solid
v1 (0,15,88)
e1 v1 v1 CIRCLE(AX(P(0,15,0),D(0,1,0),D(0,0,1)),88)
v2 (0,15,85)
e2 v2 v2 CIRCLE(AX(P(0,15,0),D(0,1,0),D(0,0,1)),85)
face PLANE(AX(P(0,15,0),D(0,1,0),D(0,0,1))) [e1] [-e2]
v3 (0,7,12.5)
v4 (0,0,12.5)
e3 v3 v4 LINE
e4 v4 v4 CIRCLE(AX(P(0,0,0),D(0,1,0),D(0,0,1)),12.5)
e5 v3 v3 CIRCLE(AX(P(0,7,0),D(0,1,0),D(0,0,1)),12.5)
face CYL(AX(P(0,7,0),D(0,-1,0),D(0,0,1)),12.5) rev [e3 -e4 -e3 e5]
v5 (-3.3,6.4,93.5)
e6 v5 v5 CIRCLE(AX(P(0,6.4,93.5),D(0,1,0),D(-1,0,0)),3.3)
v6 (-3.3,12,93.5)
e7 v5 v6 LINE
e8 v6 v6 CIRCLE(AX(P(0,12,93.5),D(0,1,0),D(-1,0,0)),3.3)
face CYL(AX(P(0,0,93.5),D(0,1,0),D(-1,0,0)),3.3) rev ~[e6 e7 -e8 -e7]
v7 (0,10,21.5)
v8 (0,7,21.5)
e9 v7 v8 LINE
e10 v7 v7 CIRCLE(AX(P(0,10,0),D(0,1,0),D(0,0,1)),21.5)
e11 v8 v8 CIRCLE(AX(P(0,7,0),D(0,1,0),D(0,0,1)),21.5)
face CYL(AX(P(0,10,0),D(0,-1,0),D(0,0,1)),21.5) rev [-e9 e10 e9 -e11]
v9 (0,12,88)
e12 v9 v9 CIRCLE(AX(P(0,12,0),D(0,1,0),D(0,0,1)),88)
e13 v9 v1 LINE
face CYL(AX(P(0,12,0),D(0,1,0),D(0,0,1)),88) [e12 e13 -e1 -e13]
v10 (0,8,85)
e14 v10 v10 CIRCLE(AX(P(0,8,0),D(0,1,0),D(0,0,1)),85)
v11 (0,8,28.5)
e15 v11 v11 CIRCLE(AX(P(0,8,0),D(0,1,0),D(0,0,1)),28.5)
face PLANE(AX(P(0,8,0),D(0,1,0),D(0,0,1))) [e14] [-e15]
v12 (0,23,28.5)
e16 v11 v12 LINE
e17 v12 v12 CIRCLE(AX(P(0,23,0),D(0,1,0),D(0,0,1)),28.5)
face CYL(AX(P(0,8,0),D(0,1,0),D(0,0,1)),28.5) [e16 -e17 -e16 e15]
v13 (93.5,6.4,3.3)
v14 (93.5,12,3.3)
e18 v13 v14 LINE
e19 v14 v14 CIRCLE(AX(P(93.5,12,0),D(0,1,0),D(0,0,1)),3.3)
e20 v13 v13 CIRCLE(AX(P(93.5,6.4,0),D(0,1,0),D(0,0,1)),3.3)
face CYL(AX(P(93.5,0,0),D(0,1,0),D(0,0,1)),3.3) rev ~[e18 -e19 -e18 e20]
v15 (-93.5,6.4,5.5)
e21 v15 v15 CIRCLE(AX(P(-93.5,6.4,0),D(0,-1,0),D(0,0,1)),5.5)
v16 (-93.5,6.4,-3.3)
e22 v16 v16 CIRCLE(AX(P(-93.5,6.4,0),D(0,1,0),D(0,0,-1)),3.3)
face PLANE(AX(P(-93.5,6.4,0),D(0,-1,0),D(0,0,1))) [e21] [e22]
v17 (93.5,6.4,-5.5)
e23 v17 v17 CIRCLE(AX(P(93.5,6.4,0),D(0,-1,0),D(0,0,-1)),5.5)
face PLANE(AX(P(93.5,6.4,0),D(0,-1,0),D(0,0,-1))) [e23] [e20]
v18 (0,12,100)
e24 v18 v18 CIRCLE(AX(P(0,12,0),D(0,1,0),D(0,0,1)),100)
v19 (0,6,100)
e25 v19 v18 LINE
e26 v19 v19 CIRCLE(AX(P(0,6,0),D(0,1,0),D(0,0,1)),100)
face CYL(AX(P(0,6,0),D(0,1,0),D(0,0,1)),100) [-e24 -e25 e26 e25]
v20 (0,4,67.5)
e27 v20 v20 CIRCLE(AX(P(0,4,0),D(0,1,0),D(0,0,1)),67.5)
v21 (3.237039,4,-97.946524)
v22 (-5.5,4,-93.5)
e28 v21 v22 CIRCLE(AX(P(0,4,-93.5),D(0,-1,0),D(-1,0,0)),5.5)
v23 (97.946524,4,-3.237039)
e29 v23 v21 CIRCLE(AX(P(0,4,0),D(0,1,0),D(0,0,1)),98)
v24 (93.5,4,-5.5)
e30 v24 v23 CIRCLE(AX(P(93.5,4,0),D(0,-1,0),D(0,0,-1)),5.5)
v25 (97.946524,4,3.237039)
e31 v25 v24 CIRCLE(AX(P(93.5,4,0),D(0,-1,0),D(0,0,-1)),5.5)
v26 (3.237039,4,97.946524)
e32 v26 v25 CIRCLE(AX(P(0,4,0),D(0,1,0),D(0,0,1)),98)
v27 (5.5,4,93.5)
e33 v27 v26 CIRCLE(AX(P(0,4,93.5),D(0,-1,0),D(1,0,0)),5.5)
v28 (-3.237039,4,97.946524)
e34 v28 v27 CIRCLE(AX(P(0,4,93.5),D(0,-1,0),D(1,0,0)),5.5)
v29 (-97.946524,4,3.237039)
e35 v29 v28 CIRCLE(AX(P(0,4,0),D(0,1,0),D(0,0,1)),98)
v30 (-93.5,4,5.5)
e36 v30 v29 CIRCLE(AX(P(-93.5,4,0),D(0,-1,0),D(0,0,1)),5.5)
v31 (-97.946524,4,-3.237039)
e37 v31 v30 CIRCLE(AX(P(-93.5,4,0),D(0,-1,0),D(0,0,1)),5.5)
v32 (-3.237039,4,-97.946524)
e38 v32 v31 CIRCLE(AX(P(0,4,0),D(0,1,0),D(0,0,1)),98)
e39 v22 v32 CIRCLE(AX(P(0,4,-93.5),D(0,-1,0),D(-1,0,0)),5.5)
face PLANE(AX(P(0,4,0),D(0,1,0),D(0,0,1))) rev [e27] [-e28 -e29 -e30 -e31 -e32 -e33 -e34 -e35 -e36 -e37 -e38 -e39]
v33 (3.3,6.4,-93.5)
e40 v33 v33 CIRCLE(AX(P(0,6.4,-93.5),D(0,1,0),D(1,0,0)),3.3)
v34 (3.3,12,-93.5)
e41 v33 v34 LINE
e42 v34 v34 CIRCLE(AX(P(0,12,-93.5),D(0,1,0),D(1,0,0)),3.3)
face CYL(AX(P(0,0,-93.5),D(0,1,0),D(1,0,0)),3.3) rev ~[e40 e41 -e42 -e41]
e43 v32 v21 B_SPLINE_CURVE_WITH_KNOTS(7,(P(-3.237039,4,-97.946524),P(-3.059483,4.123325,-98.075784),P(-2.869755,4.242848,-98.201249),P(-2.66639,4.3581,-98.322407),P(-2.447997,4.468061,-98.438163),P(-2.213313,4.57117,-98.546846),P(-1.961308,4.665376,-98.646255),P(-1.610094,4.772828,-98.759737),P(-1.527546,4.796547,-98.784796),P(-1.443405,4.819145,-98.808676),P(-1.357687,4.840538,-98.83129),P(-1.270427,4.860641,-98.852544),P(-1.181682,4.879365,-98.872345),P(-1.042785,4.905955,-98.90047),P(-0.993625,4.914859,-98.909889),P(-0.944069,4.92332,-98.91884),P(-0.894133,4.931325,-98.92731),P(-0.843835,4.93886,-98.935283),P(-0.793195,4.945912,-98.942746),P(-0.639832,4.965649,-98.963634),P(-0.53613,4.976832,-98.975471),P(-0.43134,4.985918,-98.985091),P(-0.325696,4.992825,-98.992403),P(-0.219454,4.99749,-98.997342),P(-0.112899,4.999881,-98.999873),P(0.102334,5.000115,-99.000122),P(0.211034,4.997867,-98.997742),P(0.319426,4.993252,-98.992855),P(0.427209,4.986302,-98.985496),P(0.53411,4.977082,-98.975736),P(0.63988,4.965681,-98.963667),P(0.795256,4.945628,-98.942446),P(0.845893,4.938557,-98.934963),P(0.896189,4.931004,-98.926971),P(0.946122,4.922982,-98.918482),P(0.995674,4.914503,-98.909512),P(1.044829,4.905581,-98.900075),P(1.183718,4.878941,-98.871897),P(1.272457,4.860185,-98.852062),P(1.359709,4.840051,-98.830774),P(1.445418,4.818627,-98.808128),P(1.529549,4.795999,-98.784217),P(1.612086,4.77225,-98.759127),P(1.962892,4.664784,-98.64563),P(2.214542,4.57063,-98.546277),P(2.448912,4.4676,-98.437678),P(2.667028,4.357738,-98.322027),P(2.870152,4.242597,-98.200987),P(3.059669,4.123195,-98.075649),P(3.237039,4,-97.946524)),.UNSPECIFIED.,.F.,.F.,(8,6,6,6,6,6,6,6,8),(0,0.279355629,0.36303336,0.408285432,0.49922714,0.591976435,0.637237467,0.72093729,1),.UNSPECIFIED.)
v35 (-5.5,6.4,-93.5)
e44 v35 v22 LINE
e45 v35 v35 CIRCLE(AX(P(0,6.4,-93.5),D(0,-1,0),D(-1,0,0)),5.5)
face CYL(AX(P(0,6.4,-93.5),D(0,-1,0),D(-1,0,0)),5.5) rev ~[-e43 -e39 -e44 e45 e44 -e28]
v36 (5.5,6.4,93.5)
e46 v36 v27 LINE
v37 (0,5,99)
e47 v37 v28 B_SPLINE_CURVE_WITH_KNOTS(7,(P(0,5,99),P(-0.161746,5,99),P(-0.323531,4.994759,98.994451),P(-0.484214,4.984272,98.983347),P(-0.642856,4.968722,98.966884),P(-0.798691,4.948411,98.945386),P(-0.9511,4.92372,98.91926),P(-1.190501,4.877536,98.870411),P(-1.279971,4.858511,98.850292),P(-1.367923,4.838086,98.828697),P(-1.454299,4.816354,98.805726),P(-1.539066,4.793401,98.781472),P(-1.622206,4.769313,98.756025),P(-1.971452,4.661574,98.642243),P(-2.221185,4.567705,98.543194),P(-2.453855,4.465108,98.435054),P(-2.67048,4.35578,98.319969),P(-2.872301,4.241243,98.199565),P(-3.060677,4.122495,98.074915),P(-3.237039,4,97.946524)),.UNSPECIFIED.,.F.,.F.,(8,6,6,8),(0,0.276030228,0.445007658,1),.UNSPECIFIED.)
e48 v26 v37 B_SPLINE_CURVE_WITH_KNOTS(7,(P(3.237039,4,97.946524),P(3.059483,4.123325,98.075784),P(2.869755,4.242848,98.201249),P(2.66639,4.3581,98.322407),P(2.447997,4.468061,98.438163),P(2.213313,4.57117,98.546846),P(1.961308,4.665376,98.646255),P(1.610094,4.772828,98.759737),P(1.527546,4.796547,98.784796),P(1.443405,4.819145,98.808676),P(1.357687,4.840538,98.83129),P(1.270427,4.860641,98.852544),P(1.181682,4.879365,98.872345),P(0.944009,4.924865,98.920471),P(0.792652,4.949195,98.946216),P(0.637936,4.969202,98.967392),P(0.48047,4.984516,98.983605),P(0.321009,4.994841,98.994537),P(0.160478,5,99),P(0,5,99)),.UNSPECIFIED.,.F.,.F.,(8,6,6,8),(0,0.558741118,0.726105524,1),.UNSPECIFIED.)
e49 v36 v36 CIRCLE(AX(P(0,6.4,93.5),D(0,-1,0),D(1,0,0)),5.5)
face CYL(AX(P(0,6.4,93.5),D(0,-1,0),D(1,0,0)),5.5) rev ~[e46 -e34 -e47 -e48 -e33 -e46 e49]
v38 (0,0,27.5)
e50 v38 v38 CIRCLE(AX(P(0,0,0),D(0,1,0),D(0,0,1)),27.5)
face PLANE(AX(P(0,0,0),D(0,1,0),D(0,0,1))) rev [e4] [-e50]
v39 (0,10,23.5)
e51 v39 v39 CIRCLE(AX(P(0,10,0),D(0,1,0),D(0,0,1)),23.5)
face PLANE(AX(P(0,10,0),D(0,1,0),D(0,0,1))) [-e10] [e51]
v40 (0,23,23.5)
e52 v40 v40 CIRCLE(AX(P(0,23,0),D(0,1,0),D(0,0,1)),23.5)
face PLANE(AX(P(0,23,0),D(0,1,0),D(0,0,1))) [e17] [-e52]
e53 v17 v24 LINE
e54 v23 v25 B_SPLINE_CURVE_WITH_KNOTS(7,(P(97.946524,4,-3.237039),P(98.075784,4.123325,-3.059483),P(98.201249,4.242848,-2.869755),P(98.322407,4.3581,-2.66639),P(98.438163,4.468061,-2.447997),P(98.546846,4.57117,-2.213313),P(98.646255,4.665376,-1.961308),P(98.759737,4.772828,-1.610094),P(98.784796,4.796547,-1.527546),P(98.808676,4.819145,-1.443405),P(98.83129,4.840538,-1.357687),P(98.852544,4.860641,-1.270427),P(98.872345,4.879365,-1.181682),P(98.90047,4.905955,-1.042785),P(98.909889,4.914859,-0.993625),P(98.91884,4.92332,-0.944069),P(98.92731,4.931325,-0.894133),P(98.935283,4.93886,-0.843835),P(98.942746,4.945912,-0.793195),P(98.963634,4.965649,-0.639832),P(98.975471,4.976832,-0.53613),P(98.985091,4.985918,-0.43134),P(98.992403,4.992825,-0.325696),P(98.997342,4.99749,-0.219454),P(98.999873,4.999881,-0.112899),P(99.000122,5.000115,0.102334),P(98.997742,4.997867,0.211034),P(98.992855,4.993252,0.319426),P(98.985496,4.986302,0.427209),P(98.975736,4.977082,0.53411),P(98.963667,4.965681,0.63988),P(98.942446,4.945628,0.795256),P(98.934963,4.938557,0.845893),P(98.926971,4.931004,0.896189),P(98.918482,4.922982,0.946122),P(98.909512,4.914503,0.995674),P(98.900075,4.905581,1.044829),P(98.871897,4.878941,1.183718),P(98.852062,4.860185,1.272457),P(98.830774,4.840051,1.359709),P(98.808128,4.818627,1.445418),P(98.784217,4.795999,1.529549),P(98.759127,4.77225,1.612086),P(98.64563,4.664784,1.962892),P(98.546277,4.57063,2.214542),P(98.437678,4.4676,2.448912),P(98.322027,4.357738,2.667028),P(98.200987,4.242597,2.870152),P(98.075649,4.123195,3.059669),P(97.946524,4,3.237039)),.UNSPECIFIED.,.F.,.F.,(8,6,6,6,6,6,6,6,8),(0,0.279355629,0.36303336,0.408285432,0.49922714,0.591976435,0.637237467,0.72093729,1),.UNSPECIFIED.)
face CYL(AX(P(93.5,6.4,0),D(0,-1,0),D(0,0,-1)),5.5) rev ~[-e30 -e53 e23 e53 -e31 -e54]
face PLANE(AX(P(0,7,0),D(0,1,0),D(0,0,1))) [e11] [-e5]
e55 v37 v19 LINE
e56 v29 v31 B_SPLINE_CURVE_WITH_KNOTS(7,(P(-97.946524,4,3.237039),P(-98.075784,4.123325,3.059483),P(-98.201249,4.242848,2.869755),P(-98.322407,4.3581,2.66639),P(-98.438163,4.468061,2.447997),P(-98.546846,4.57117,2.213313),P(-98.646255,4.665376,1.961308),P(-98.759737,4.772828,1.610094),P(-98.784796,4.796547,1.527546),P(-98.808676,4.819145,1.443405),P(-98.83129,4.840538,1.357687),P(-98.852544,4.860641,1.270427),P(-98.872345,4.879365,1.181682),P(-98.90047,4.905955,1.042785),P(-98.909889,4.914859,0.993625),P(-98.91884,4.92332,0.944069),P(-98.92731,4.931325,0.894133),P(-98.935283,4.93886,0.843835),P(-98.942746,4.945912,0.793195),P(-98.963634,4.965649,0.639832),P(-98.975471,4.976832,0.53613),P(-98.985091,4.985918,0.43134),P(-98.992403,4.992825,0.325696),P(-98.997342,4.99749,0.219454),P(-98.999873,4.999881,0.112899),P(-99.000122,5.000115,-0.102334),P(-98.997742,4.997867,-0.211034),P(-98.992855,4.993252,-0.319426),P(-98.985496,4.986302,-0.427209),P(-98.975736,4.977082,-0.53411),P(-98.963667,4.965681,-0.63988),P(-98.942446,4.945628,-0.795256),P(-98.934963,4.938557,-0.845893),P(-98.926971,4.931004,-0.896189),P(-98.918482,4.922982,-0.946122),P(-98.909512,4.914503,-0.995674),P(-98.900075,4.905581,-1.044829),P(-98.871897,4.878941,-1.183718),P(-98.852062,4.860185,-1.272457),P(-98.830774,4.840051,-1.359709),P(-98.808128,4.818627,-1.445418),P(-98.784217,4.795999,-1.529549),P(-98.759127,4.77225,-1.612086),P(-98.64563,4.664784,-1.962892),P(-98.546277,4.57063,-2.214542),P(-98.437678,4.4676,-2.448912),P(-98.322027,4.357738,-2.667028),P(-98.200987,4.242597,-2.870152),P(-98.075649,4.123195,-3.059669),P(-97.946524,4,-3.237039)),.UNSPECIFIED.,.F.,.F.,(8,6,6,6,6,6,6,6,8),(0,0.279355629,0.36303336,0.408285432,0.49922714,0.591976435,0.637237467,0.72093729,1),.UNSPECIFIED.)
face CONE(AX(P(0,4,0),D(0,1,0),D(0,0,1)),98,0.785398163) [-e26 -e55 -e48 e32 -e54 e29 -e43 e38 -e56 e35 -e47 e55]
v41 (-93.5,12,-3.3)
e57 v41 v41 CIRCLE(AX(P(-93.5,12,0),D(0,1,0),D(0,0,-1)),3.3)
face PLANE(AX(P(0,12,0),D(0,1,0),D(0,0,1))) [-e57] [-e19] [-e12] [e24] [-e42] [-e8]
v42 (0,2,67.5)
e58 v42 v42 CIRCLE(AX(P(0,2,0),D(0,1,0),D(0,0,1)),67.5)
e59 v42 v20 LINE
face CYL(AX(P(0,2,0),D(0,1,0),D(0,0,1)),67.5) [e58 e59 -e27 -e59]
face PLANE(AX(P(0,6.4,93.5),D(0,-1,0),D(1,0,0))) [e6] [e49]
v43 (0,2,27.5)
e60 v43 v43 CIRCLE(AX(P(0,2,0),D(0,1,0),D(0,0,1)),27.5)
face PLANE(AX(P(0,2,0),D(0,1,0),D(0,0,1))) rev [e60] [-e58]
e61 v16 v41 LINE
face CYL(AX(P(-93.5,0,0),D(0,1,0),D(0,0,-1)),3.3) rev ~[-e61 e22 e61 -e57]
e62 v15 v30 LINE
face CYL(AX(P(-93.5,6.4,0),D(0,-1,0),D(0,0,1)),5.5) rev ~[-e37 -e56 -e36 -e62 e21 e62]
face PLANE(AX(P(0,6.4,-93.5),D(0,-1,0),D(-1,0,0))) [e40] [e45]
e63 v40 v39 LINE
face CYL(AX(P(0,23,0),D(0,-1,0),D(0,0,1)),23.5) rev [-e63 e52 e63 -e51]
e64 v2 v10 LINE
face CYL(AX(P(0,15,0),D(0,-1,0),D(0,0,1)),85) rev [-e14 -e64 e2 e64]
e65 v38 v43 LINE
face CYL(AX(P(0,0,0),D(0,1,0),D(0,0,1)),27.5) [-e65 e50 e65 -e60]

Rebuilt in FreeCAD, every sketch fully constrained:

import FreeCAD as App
import Part
import Sketcher
Q = App.Units.Quantity

doc = App.newDocument("Part")
body = doc.addObject("PartDesign::Body", "Body")

# Sketch on YZ plane
sketch1 = doc.addObject("Sketcher::SketchObject", "Sketch")
body.addObject(sketch1)
sketch1.AttachmentSupport = (doc.YZ_Plane, [""])
sketch1.MapMode = "FlatFace"
sketch1.addGeometry([
    Part.LineSegment(App.Vector(12, 100, 0), App.Vector(6, 100, 0)),  # 0
    Part.LineSegment(App.Vector(6, 100, 0), App.Vector(4, 98, 0)),  # 1
    Part.LineSegment(App.Vector(4, 98, 0), App.Vector(4, 67.5, 0)),  # 2
    Part.LineSegment(App.Vector(4, 67.5, 0), App.Vector(2, 67.5, 0)),  # 3
    Part.LineSegment(App.Vector(2, 67.5, 0), App.Vector(2, 27.5, 0)),  # 4
    Part.LineSegment(App.Vector(2, 27.5, 0), App.Vector(0, 27.5, 0)),  # 5
    Part.LineSegment(App.Vector(0, 27.5, 0), App.Vector(0, 12.5, 0)),  # 6
    Part.LineSegment(App.Vector(0, 12.5, 0), App.Vector(7, 12.5, 0)),  # 7
    Part.LineSegment(App.Vector(7, 12.5, 0), App.Vector(7, 21.5, 0)),  # 8
    Part.LineSegment(App.Vector(7, 21.5, 0), App.Vector(10, 21.5, 0)),  # 9
    Part.LineSegment(App.Vector(10, 21.5, 0), App.Vector(10, 23.5, 0)),  # 10
    Part.LineSegment(App.Vector(10, 23.5, 0), App.Vector(23, 23.5, 0)),  # 11
    Part.LineSegment(App.Vector(23, 23.5, 0), App.Vector(23, 28.5, 0)),  # 12
    Part.LineSegment(App.Vector(23, 28.5, 0), App.Vector(8, 28.5, 0)),  # 13
    Part.LineSegment(App.Vector(8, 28.5, 0), App.Vector(8, 85, 0)),  # 14
    Part.LineSegment(App.Vector(8, 85, 0), App.Vector(15, 85, 0)),  # 15
    Part.LineSegment(App.Vector(15, 85, 0), App.Vector(15, 88, 0)),  # 16
    Part.LineSegment(App.Vector(15, 88, 0), App.Vector(12, 88, 0)),  # 17
    Part.LineSegment(App.Vector(12, 88, 0), App.Vector(12, 100, 0)),  # 18
], False)
sketch1.addConstraint([
    Sketcher.Constraint("Coincident", 0, 2, 1, 1),
    Sketcher.Constraint("Coincident", 1, 2, 2, 1),
    Sketcher.Constraint("Coincident", 2, 2, 3, 1),
    Sketcher.Constraint("Coincident", 3, 2, 4, 1),
    Sketcher.Constraint("Coincident", 4, 2, 5, 1),
    Sketcher.Constraint("Coincident", 5, 2, 6, 1),
    Sketcher.Constraint("Coincident", 6, 2, 7, 1),
    Sketcher.Constraint("Coincident", 7, 2, 8, 1),
    Sketcher.Constraint("Coincident", 8, 2, 9, 1),
    Sketcher.Constraint("Coincident", 9, 2, 10, 1),
    Sketcher.Constraint("Coincident", 10, 2, 11, 1),
    Sketcher.Constraint("Coincident", 11, 2, 12, 1),
    Sketcher.Constraint("Coincident", 12, 2, 13, 1),
    Sketcher.Constraint("Coincident", 13, 2, 14, 1),
    Sketcher.Constraint("Coincident", 14, 2, 15, 1),
    Sketcher.Constraint("Coincident", 15, 2, 16, 1),
    Sketcher.Constraint("Coincident", 16, 2, 17, 1),
    Sketcher.Constraint("Coincident", 17, 2, 18, 1),
    Sketcher.Constraint("Coincident", 18, 2, 0, 1),
    Sketcher.Constraint("Horizontal", 0),
    Sketcher.Constraint("Vertical", 2),
    Sketcher.Constraint("Horizontal", 3),
    Sketcher.Constraint("Vertical", 4),
    Sketcher.Constraint("Horizontal", 5),
    Sketcher.Constraint("Vertical", 6),
    Sketcher.Constraint("Horizontal", 7),
    Sketcher.Constraint("Vertical", 8),
    Sketcher.Constraint("Horizontal", 9),
    Sketcher.Constraint("Vertical", 10),
    Sketcher.Constraint("Horizontal", 11),
    Sketcher.Constraint("Vertical", 12),
    Sketcher.Constraint("Horizontal", 13),
    Sketcher.Constraint("Vertical", 14),
    Sketcher.Constraint("Horizontal", 15),
    Sketcher.Constraint("Vertical", 16),
    Sketcher.Constraint("Horizontal", 17),
    Sketcher.Constraint("Vertical", 18),
    Sketcher.Constraint("PointOnObject", 5, 2, -2),
    Sketcher.Constraint("Equal", 3, 5),
    Sketcher.Constraint("Equal", 7, 15),
    Sketcher.Constraint("Equal", 9, 17),
    Sketcher.Constraint("Equal", 13, 6),
    Sketcher.Constraint("Equal", 5, 10),
    Sketcher.Constraint("Equal", 17, 16),
    Sketcher.Constraint("DistanceX", 0, 2, 0, 1, Q("6 mm")),
    Sketcher.Constraint("DistanceX", 3, 2, 3, 1, Q("2 mm")),
    Sketcher.Constraint("DistanceX", 7, 1, 7, 2, Q("7 mm")),
    Sketcher.Constraint("DistanceX", 9, 1, 9, 2, Q("3 mm")),
    Sketcher.Constraint("DistanceX", 11, 1, 11, 2, Q("13 mm")),
    Sketcher.Constraint("DistanceX", 13, 2, 13, 1, Q("15 mm")),
    Sketcher.Constraint("DistanceY", 4, 2, 4, 1, Q("40 mm")),
    Sketcher.Constraint("DistanceY", 8, 1, 8, 2, Q("9 mm")),
    Sketcher.Constraint("DistanceY", 12, 1, 12, 2, Q("5 mm")),
    Sketcher.Constraint("DistanceY", 18, 1, 18, 2, Q("12 mm")),
    Sketcher.Constraint("Angle", 1, Q("-135 deg")),
    Sketcher.Constraint("DistanceY", 2, 2, 2, 1, Q("30.5 mm")),
    Sketcher.Constraint("DistanceY", -1, 1, 0, 2, Q("100 mm")),
])
revolution = doc.addObject("PartDesign::Revolution", "Revolution")
body.addObject(revolution)
revolution.Profile = sketch1
revolution.ReferenceAxis = (sketch1, ["H_Axis"])
revolution.Angle = 360

# Sketch on XZ plane
sketch2 = doc.addObject("Sketcher::SketchObject", "Sketch001")
body.addObject(sketch2)
sketch2.AttachmentSupport = (doc.XZ_Plane, [""])
sketch2.MapMode = "FlatFace"
sketch2.addGeometry(Part.Circle(App.Vector(0, 93.5, 0), App.Vector(0, 0, 1), 3.3), False)
sketch2.addConstraint([
    Sketcher.Constraint("PointOnObject", 0, 3, -2),
    Sketcher.Constraint("Diameter", 0, Q("6.6 mm")),
    Sketcher.Constraint("DistanceY", -1, 1, 0, 3, Q("93.5 mm")),
])
doc.recompute()
hole = doc.addObject("PartDesign::Hole", "Hole")
body.addObject(hole)
hole.Profile = sketch2
hole.ThreadType = "None"
hole.Diameter = 6.6
hole.DepthType = "ThroughAll"
hole.HoleCutType = "Counterbore"
hole.HoleCutDiameter = 11
hole.HoleCutDepth = 6.4
doc.recompute()

polarpattern = doc.addObject("PartDesign::PolarPattern", "PolarPattern")
body.addObject(polarpattern)
polarpattern.Originals = [hole]
polarpattern.Axis = (doc.Y_Axis, [""])
polarpattern.Angle = 360
polarpattern.Occurrences = 4
body.Tip = polarpattern

doc.recompute()
